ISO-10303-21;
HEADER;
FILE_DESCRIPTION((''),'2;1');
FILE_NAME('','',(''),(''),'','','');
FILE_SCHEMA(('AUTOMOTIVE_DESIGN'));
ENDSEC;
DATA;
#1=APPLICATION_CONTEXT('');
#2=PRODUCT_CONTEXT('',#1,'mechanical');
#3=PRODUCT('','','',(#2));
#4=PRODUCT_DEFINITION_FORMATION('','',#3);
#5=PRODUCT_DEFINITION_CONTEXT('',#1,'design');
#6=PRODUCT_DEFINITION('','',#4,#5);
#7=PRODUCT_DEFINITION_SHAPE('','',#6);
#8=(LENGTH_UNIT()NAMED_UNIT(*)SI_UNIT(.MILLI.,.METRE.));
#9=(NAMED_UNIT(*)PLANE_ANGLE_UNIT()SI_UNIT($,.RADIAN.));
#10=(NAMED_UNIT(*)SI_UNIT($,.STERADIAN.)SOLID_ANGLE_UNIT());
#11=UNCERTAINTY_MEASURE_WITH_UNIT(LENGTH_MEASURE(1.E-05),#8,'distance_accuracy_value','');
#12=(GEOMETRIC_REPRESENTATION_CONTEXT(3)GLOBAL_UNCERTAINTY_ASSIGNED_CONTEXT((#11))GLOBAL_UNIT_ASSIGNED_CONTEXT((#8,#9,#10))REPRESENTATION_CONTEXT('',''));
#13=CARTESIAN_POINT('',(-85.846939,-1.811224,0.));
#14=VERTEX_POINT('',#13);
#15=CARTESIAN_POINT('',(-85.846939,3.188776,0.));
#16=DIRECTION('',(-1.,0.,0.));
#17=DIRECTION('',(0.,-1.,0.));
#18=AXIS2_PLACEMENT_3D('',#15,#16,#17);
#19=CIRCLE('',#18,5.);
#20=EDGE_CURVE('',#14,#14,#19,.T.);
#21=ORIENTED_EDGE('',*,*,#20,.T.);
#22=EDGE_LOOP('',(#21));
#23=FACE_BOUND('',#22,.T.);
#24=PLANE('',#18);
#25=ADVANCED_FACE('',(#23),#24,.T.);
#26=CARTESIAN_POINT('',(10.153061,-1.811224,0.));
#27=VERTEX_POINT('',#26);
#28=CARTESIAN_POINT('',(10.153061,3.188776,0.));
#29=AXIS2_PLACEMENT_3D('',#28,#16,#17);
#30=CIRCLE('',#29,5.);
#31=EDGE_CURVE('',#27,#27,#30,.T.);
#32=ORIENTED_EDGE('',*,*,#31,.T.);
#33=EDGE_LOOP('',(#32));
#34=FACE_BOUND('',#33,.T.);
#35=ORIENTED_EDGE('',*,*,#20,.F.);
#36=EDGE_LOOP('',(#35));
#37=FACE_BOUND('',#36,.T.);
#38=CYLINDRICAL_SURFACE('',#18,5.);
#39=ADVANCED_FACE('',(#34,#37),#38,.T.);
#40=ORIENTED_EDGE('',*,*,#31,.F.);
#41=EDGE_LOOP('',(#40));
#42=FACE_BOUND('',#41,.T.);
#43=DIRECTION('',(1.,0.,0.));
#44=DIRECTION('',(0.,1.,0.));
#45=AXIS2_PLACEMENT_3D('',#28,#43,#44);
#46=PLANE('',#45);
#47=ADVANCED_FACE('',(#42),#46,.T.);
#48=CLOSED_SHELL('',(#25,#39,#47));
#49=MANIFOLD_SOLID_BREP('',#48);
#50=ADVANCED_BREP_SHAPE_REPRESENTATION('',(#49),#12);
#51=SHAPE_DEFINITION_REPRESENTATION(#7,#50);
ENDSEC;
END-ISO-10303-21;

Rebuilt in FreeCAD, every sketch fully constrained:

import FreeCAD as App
import Part
import Sketcher
from FreeCAD import Vector


def add_polygon(sketch, points):
    """Adds a closed chain of lines whose ends are joined by coincident constraints."""
    first, n = sketch.GeometryCount, len(points)
    for a, b in zip(points, points[1:] + points[:1]):
        sketch.addGeometry(Part.LineSegment(App.Vector(*a, 0), App.Vector(*b, 0)), False)
    for i in range(n):
        sketch.addConstraint(Sketcher.Constraint("Coincident", first + i, 2, first + (i + 1) % n, 1))

doc = App.newDocument("Part")
body = doc.addObject("PartDesign::Body", "Body")

# Sketch on XY plane
sketch1 = body.newObject("Sketcher::SketchObject", "Sketch")
sketch1.AttachmentSupport = (doc.getObject("XY_Plane"), [""])
sketch1.MapMode = "FlatFace"
add_polygon(sketch1, [(-86, 3), (-86, -2), (10, -2), (10, 3)])  # lines 0-3
sketch1.addGeometry(Part.LineSegment(Vector(-86, 3, 0), Vector(10, 3, 0)), True)  # axis
sketch1.addConstraint(Sketcher.Constraint("Vertical", 0))
sketch1.addConstraint(Sketcher.Constraint("Horizontal", 1))
sketch1.addConstraint(Sketcher.Constraint("Vertical", 2))
sketch1.addConstraint(Sketcher.Constraint("Horizontal", 3))
sketch1.addConstraint(Sketcher.Constraint("Horizontal", 4))
sketch1.addConstraint(Sketcher.Constraint("Coincident", 4, 1, 3, 2))
sketch1.addConstraint(Sketcher.Constraint("Vertical", 1, 2, 4, 2))
sketch1.addConstraint(Sketcher.Constraint("DistanceX", 1, 1, 1, 2, 96.0))
sketch1.addConstraint(Sketcher.Constraint("DistanceY", 0, 2, 0, 1, 5.0))
sketch1.addConstraint(Sketcher.Constraint("DistanceX", 0, 2, -1, 1, 85.846939))
sketch1.addConstraint(Sketcher.Constraint("DistanceY", 0, 2, -1, 1, 1.811224))
revolution = body.newObject("PartDesign::Revolution", "Revolution")
revolution.Profile = sketch1
revolution.ReferenceAxis = (sketch1, ["Axis0"])
revolution.Angle = 360

doc.recompute()
